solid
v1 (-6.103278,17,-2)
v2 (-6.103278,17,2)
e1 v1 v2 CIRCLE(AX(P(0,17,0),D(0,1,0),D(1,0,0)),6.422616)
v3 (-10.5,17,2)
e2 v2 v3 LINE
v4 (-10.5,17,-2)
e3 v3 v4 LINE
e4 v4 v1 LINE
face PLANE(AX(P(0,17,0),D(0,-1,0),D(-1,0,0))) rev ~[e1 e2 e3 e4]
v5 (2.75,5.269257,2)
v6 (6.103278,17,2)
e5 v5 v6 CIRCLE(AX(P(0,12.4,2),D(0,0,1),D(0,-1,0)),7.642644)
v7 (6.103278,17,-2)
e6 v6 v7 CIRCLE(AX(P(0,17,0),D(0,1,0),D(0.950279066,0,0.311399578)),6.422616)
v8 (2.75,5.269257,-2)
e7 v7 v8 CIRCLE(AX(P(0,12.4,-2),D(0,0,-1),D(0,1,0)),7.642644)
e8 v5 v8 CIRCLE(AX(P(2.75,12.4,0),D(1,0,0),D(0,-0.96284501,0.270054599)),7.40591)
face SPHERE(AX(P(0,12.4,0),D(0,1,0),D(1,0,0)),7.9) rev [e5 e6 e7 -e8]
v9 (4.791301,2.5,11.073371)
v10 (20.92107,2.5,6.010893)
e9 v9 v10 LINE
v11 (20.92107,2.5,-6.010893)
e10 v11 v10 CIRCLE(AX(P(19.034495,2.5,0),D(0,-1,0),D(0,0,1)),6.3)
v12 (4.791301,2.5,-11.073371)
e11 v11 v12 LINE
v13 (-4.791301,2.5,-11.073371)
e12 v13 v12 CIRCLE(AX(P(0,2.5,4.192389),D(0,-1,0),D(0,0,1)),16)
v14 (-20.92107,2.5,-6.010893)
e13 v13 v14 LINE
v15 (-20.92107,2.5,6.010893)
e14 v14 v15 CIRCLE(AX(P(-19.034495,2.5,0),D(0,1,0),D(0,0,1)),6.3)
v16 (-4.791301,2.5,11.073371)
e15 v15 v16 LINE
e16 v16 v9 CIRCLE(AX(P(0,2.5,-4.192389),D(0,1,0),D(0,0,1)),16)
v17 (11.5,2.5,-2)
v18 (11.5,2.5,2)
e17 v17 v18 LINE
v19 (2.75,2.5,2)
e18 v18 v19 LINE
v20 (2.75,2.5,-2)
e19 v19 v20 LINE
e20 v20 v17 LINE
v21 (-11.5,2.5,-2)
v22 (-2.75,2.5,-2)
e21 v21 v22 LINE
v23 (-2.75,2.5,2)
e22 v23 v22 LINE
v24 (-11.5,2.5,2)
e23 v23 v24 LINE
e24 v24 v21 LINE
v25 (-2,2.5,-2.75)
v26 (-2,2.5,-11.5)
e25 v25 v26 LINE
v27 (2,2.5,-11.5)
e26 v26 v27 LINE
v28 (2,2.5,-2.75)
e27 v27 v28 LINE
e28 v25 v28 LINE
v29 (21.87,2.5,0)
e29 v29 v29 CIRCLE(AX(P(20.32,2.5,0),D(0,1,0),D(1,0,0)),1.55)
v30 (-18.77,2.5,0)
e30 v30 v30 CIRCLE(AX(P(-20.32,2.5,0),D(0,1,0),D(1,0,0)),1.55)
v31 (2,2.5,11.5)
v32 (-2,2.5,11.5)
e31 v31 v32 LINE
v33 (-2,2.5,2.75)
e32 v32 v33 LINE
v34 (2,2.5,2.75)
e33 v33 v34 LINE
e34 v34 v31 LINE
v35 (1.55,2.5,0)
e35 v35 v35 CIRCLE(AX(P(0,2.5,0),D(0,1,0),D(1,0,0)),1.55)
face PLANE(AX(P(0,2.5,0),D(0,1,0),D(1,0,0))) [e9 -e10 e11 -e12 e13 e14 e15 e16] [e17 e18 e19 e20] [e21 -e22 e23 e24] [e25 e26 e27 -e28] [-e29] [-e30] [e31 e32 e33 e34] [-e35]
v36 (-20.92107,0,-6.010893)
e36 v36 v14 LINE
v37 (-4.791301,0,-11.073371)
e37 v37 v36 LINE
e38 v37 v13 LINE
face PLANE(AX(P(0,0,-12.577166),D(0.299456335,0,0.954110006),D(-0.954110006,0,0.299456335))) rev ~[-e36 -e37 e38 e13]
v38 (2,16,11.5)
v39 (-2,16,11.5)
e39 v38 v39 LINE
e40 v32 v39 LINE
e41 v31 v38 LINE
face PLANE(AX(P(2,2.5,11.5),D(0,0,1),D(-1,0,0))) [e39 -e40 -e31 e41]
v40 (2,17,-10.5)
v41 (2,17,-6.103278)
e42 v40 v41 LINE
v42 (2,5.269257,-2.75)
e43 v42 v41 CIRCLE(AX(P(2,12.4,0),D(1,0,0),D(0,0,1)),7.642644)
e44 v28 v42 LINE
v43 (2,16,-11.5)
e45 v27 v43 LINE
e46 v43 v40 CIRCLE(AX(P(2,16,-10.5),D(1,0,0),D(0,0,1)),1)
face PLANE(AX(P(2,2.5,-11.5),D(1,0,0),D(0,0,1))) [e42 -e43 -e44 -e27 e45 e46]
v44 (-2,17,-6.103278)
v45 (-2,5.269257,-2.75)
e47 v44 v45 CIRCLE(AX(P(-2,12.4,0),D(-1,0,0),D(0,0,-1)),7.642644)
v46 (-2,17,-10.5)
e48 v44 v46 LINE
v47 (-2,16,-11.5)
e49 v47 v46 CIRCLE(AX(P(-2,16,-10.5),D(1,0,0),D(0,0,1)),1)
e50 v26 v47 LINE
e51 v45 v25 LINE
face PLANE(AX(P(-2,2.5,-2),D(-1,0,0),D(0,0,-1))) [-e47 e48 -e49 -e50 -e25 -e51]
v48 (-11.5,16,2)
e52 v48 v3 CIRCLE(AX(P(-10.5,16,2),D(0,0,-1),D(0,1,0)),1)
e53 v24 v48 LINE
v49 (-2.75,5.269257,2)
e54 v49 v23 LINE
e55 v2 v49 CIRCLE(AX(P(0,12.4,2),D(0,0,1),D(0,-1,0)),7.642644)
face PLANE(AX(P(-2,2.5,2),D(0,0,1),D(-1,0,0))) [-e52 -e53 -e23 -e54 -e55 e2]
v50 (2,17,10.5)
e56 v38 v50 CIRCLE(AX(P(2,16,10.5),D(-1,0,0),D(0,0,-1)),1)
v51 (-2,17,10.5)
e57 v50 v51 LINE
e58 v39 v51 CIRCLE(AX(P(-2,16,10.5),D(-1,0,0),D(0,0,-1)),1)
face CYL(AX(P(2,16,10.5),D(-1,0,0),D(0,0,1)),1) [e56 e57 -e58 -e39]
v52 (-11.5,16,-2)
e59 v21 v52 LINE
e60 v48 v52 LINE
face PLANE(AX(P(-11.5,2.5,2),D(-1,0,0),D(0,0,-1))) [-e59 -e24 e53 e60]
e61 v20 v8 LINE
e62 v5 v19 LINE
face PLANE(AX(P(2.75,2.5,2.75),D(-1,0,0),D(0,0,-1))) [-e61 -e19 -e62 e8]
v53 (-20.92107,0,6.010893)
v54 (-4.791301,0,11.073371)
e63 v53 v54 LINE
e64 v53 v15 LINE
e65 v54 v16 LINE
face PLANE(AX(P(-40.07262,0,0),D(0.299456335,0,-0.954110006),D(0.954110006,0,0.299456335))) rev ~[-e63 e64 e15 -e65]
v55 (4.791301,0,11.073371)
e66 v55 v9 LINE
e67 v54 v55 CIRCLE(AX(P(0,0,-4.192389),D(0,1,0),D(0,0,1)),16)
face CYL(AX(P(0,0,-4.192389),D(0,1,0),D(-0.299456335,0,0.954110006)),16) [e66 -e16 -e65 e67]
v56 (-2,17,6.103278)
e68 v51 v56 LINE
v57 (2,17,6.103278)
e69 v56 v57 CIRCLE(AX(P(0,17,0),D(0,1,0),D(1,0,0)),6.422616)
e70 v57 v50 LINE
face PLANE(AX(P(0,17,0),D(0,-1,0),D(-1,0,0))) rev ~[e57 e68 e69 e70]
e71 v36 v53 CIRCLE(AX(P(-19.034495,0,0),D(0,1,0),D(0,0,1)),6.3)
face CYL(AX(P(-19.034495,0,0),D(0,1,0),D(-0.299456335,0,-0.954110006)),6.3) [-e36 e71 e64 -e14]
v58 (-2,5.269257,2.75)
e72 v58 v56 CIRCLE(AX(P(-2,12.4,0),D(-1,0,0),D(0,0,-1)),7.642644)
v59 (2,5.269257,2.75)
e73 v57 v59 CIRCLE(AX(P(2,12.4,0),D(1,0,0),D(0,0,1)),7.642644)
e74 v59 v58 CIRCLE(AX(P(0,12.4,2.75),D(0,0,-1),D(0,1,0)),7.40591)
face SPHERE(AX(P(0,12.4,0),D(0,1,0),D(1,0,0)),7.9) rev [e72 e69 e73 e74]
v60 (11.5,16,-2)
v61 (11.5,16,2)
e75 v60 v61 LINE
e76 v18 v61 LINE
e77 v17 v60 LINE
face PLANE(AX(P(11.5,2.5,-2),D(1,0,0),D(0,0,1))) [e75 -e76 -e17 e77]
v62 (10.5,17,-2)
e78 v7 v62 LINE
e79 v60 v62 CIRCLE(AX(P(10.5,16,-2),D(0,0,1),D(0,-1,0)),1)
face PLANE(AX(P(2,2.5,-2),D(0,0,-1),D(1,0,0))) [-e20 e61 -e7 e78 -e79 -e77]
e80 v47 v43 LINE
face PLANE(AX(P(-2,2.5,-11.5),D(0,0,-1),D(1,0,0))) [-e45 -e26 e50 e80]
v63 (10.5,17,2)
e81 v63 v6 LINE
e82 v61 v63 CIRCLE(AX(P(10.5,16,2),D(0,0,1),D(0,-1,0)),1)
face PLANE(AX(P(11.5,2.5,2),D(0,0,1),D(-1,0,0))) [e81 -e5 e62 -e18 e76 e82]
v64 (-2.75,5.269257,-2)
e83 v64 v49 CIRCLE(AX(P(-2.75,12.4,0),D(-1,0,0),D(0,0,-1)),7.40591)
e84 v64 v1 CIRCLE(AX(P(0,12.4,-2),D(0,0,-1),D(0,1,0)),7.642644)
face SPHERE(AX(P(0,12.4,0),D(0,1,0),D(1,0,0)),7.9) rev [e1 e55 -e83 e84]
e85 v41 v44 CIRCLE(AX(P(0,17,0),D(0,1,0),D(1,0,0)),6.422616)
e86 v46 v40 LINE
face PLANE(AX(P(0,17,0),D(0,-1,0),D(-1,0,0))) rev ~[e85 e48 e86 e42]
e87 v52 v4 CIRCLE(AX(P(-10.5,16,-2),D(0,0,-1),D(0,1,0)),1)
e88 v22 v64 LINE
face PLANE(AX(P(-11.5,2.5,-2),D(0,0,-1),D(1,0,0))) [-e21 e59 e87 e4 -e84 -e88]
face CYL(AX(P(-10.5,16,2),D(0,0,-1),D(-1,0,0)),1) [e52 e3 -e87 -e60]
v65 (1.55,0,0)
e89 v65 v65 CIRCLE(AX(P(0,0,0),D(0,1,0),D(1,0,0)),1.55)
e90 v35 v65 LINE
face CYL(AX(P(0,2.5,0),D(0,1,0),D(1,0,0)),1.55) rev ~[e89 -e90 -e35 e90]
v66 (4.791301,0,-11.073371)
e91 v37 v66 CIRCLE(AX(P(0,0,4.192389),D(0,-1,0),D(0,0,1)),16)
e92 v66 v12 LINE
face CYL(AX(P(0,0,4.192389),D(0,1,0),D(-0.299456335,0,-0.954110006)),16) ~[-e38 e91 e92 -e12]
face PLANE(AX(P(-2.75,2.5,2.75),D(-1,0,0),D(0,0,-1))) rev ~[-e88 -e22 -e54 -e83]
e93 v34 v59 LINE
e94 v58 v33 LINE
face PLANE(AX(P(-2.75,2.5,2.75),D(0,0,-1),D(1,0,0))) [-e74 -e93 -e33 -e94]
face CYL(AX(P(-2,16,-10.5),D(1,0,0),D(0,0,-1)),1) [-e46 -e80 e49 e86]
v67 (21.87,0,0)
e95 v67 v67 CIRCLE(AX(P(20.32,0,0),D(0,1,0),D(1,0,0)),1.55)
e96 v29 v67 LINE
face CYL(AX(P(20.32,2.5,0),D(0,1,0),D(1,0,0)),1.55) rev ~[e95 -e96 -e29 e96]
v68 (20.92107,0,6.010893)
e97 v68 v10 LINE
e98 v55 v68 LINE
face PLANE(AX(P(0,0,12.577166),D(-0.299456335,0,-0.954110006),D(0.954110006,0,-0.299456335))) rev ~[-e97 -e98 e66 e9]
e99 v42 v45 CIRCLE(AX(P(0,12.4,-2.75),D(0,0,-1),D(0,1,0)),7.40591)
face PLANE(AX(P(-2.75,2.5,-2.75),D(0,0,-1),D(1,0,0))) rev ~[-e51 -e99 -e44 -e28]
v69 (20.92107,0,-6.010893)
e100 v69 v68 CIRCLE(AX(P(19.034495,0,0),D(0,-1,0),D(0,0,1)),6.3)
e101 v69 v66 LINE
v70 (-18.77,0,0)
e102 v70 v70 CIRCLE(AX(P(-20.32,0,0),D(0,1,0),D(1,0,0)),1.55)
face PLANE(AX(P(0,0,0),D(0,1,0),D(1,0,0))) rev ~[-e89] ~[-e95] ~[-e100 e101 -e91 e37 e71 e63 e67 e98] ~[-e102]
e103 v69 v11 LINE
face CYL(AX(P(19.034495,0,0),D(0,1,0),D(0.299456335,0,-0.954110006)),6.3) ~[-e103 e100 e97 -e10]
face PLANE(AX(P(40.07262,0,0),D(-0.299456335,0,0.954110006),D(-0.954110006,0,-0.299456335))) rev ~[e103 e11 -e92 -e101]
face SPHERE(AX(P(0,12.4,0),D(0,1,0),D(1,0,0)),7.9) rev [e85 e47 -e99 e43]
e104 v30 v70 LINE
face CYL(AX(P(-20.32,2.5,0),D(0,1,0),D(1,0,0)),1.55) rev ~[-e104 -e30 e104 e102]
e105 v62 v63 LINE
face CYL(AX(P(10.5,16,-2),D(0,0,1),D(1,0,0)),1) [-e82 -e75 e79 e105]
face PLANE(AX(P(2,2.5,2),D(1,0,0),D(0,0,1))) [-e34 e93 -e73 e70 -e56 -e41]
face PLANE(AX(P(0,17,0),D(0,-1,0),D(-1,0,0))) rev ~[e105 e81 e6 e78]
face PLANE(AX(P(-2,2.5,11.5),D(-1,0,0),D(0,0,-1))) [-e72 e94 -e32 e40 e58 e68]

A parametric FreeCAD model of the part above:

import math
import FreeCAD as App
import Part
import Sketcher

V = App.Vector
Q = App.Units.Quantity


def edges_at(feature, points):
    """Names of the edges that pass closest to the given points."""
    edges = feature.Shape.Edges
    near = lambda p: min(range(len(edges)), key=lambda i: edges[i].distToShape(Part.Vertex(*p))[0])
    return sorted({f"Edge{near(p) + 1}" for p in points})

doc = App.newDocument("Part")
body = doc.addObject("PartDesign::Body", "Body")

# Sketch on XZ plane
sketch1 = body.newObject("Sketcher::SketchObject", "Sketch")
sketch1.AttachmentSupport = (doc.getObject("XZ_Plane"), [""])
sketch1.MapMode = "FlatFace"
sketch1.addGeometry([
    Part.LineSegment(V(0, -12.577166, 0), V(-40.07262, 0, 0)),
    Part.LineSegment(V(-40.07262, 0, 0), V(0, 12.577166, 0)),
    Part.LineSegment(V(0, 12.577166, 0), V(40.07262, 0, 0)),
    Part.LineSegment(V(40.07262, 0, 0), V(0, -12.577166, 0)),
], False)
sketch1.addConstraint([
    Sketcher.Constraint("Coincident", 0, 2, 1, 1),
    Sketcher.Constraint("Coincident", 1, 2, 2, 1),
    Sketcher.Constraint("Coincident", 2, 2, 3, 1),
    Sketcher.Constraint("Coincident", 3, 2, 0, 1),
    Sketcher.Constraint("Symmetric", 0, 2, 2, 2, -1, 1),
    Sketcher.Constraint("Symmetric", 1, 2, 3, 2, -1, 1),
    Sketcher.Constraint("PointOnObject", 0, 2, -1),
    Sketcher.Constraint("PointOnObject", 1, 2, -2),
    Sketcher.Constraint("Distance", 0, Q("42 mm")),
    Sketcher.Constraint("DistanceX", 0, 2, -1, 1, Q("40.07262 mm")),
])
pad1 = body.newObject("PartDesign::Pad", "Pad")
pad1.Profile = sketch1
pad1.Length = 2.5
pad1.Reversed = True
doc.recompute()

fillet = body.newObject("PartDesign::Fillet", "Fillet")
fillet.Base = (pad1, edges_at(pad1, [(0, 1.25, 12.577), (0, 1.25, -12.577)]))
fillet.Radius = 16
doc.recompute()

fillet2 = body.newObject("PartDesign::Fillet", "Fillet001")
fillet2.Base = (fillet, edges_at(fillet, [(40.073, 1.25, 0), (-40.073, 1.25, 0)]))
fillet2.Radius = 6.3

# Sketch on XZ plane
sketch2 = body.newObject("Sketcher::SketchObject", "Sketch001")
sketch2.AttachmentSupport = (doc.getObject("XZ_Plane"), [""])
sketch2.MapMode = "FlatFace"
sketch2.AttachmentOffset = App.Placement(V(0, 0, -2.5), App.Rotation())
sketch2.addGeometry([
    Part.LineSegment(V(11.5, -2, 0), V(2, -2, 0)),  # 0
    Part.LineSegment(V(2, -2, 0), V(2, -11.5, 0)),  # 1
    Part.LineSegment(V(2, -11.5, 0), V(-2, -11.5, 0)),  # 2
    Part.LineSegment(V(-2, -11.5, 0), V(-2, -2, 0)),  # 3
    Part.LineSegment(V(-2, -2, 0), V(-11.5, -2, 0)),  # 4
    Part.LineSegment(V(-11.5, -2, 0), V(-11.5, 2, 0)),  # 5
    Part.LineSegment(V(-11.5, 2, 0), V(-2, 2, 0)),  # 6
    Part.LineSegment(V(-2, 2, 0), V(-2, 11.5, 0)),  # 7
    Part.LineSegment(V(-2, 11.5, 0), V(2, 11.5, 0)),  # 8
    Part.LineSegment(V(2, 11.5, 0), V(2, 2, 0)),  # 9
    Part.LineSegment(V(2, 2, 0), V(11.5, 2, 0)),  # 10
    Part.LineSegment(V(11.5, 2, 0), V(11.5, -2, 0)),  # 11
], False)
sketch2.addConstraint([
    Sketcher.Constraint("Coincident", 0, 2, 1, 1),
    Sketcher.Constraint("Coincident", 1, 2, 2, 1),
    Sketcher.Constraint("Coincident", 2, 2, 3, 1),
    Sketcher.Constraint("Coincident", 3, 2, 4, 1),
    Sketcher.Constraint("Coincident", 4, 2, 5, 1),
    Sketcher.Constraint("Coincident", 5, 2, 6, 1),
    Sketcher.Constraint("Coincident", 6, 2, 7, 1),
    Sketcher.Constraint("Coincident", 7, 2, 8, 1),
    Sketcher.Constraint("Coincident", 8, 2, 9, 1),
    Sketcher.Constraint("Coincident", 9, 2, 10, 1),
    Sketcher.Constraint("Coincident", 10, 2, 11, 1),
    Sketcher.Constraint("Coincident", 11, 2, 0, 1),
    Sketcher.Constraint("Horizontal", 0),
    Sketcher.Constraint("Vertical", 1),
    Sketcher.Constraint("Horizontal", 2),
    Sketcher.Constraint("Vertical", 3),
    Sketcher.Constraint("Horizontal", 4),
    Sketcher.Constraint("Vertical", 5),
    Sketcher.Constraint("Horizontal", 6),
    Sketcher.Constraint("Vertical", 7),
    Sketcher.Constraint("Horizontal", 8),
    Sketcher.Constraint("Vertical", 9),
    Sketcher.Constraint("Horizontal", 10),
    Sketcher.Constraint("Vertical", 11),
    Sketcher.Constraint("Symmetric", 0, 2, 6, 2, -1, 1),
    Sketcher.Constraint("Symmetric", 2, 2, 8, 2, -1, 1),
    Sketcher.Constraint("Symmetric", 4, 2, 10, 2, -1, 1),
    Sketcher.Constraint("Symmetric", 0, 2, 3, 2, -2),
    Sketcher.Constraint("Equal", 10, 1),
    Sketcher.Constraint("Equal", 8, 5),
    Sketcher.Constraint("DistanceX", 2, 2, 2, 1, Q("4 mm")),
    Sketcher.Constraint("DistanceX", 0, 2, 0, 1, Q("9.5 mm")),
])
pad2 = body.newObject("PartDesign::Pad", "Pad001")
pad2.Profile = sketch2
pad2.Length = 14.5
pad2.Reversed = True

# Sketch on XY plane
sketch3 = body.newObject("Sketcher::SketchObject", "Sketch002")
sketch3.AttachmentSupport = (doc.getObject("XY_Plane"), [""])
sketch3.MapMode = "FlatFace"
sketch3.addGeometry([
    Part.ArcOfCircle(Part.Circle(V(0, 12.4, 0), V(0, 0, 1), 7.9), math.radians(-90), math.radians(90)),
    Part.LineSegment(V(0, 20.3, 0), V(0, 4.5, 0)),
], False)
sketch3.addConstraint([
    Sketcher.Constraint("Coincident", 0, 1, 1, 2),
    Sketcher.Constraint("Coincident", 1, 1, 0, 2),
    Sketcher.Constraint("Vertical", 1),
    Sketcher.Constraint("PointOnObject", 0, 3, -2),
    Sketcher.Constraint("PointOnObject", 0, 1, -2),
    Sketcher.Constraint("Radius", 0, Q("7.9 mm")),
    Sketcher.Constraint("DistanceY", -1, 1, 0, 3, Q("12.4 mm")),
])
groove = body.newObject("PartDesign::Groove", "Groove")
groove.Profile = sketch3
groove.ReferenceAxis = (sketch3, ["V_Axis"])
groove.Angle = 360
doc.recompute()

fillet3 = body.newObject("PartDesign::Fillet", "Fillet002")
fillet3.Base = (groove, edges_at(groove, [
    (-11.5, 17, 0),
    (0, 17, 11.5),
    (11.5, 17, 0),
    (0, 17, -11.5),
]))
fillet3.Radius = 1

# Sketch on XZ plane
sketch4 = body.newObject("Sketcher::SketchObject", "Sketch003")
sketch4.AttachmentSupport = (doc.getObject("XZ_Plane"), [""])
sketch4.MapMode = "FlatFace"
sketch4.AttachmentOffset = App.Placement(V(0, 0, -2.5), App.Rotation())
sketch4.addGeometry([
    Part.LineSegment(V(-2.75, -2.75, 0), V(-2.75, 2.75, 0)),
    Part.LineSegment(V(-2.75, 2.75, 0), V(2.75, 2.75, 0)),
    Part.LineSegment(V(2.75, 2.75, 0), V(2.75, -2.75, 0)),
    Part.LineSegment(V(2.75, -2.75, 0), V(-2.75, -2.75, 0)),
], False)
sketch4.addConstraint([
    Sketcher.Constraint("Coincident", 0, 2, 1, 1),
    Sketcher.Constraint("Coincident", 1, 2, 2, 1),
    Sketcher.Constraint("Coincident", 2, 2, 3, 1),
    Sketcher.Constraint("Coincident", 3, 2, 0, 1),
    Sketcher.Constraint("Vertical", 0),
    Sketcher.Constraint("Horizontal", 1),
    Sketcher.Constraint("Vertical", 2),
    Sketcher.Constraint("Horizontal", 3),
    Sketcher.Constraint("Symmetric", 0, 2, 2, 2, -1, 1),
    Sketcher.Constraint("Equal", 3, 0),
    Sketcher.Constraint("DistanceX", 1, 1, 1, 2, Q("5.5 mm")),
])
pocket1 = body.newObject("PartDesign::Pocket", "Pocket")
pocket1.Profile = sketch4
pocket1.Length = 31.959805

# Sketch on XZ plane
sketch5 = body.newObject("Sketcher::SketchObject", "Sketch004")
sketch5.AttachmentSupport = (doc.getObject("XZ_Plane"), [""])
sketch5.MapMode = "FlatFace"
sketch5.AttachmentOffset = App.Placement(V(0, 0, -2.5), App.Rotation())
sketch5.addGeometry(Part.Circle(V(0, 0, 0), V(0, 0, 1), 1.55), False)
sketch5.addConstraint([
    Sketcher.Constraint("Coincident", 0, 3, -1, 1),
    Sketcher.Constraint("Diameter", 0, Q("3.1 mm")),
])
pocket2 = body.newObject("PartDesign::Pocket", "Pocket001")
pocket2.Profile = sketch5
pocket2.Length = 2.5
pocket2.Reversed = True

# Sketch on XZ plane
sketch6 = body.newObject("Sketcher::SketchObject", "Sketch005")
sketch6.AttachmentSupport = (doc.getObject("XZ_Plane"), [""])
sketch6.MapMode = "FlatFace"
sketch6.AttachmentOffset = App.Placement(V(0, 0, -2.5), App.Rotation())
sketch6.addGeometry([
    Part.Circle(V(20.32, 0, 0), V(0, 0, 1), 1.55),
    Part.Circle(V(-20.32, 0, 0), V(0, 0, 1), 1.55),
], False)
sketch6.addConstraint([
    Sketcher.Constraint("Equal", 0, 1),
    Sketcher.Constraint("Symmetric", 0, 3, 1, 3, -1, 1),
    Sketcher.Constraint("PointOnObject", 0, 3, -1),
    Sketcher.Constraint("Diameter", 0, Q("3.1 mm")),
    Sketcher.Constraint("DistanceX", -1, 1, 0, 3, Q("20.32 mm")),
])
pocket3 = body.newObject("PartDesign::Pocket", "Pocket002")
pocket3.Profile = sketch6
pocket3.Length = 2.5
pocket3.Reversed = True

doc.recompute()
